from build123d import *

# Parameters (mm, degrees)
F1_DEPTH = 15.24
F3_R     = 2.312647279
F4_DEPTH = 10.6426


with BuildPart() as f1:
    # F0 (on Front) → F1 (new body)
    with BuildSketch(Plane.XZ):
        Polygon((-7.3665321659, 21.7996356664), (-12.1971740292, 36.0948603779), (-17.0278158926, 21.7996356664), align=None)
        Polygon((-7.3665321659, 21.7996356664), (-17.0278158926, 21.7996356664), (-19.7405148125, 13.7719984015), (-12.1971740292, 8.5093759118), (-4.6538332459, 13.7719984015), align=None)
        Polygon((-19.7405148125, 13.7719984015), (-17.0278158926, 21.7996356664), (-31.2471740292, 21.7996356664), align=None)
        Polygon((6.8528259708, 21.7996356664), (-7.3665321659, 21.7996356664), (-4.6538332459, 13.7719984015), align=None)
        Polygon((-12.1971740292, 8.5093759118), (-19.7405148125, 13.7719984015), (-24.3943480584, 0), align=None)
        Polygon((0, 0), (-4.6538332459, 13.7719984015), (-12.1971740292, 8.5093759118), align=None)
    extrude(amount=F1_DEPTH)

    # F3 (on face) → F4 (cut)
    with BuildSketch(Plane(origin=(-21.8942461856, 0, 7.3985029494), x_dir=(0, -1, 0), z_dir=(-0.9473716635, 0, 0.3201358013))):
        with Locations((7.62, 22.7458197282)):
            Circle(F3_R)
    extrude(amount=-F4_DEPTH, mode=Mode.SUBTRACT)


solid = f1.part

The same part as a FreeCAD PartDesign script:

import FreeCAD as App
import Part
import Sketcher
from FreeCAD import Vector
Q = App.Units.Quantity

doc = App.newDocument("Part")
body = doc.addObject("PartDesign::Body", "Body")

# Sketch on XZ plane
sketch1 = body.newObject("Sketcher::SketchObject", "Sketch")
sketch1.AttachmentSupport = (doc.getObject("XZ_Plane"), [""])
sketch1.MapMode = "FlatFace"
sketch1.addGeometry(Part.LineSegment(Vector(-7.366532, 21.799636, 0), Vector(-12.197174, 36.09486, 0)), False)
sketch1.addGeometry(Part.LineSegment(Vector(-12.197174, 36.09486, 0), Vector(-17.027816, 21.799636, 0)), False)
sketch1.addGeometry(Part.LineSegment(Vector(-17.027816, 21.799636, 0), Vector(-31.247174, 21.799636, 0)), False)
sketch1.addGeometry(Part.LineSegment(Vector(-31.247174, 21.799636, 0), Vector(-19.740515, 13.771998, 0)), False)
sketch1.addGeometry(Part.LineSegment(Vector(-19.740515, 13.771998, 0), Vector(-24.394348, 0, 0)), False)
sketch1.addGeometry(Part.LineSegment(Vector(-24.394348, 0, 0), Vector(-12.197174, 8.509376, 0)), False)
sketch1.addGeometry(Part.LineSegment(Vector(-12.197174, 8.509376, 0), Vector(0, 0, 0)), False)
sketch1.addGeometry(Part.LineSegment(Vector(0, 0, 0), Vector(-4.653833, 13.771998, 0)), False)
sketch1.addGeometry(Part.LineSegment(Vector(-4.653833, 13.771998, 0), Vector(6.852826, 21.799636, 0)), False)
sketch1.addGeometry(Part.LineSegment(Vector(6.852826, 21.799636, 0), Vector(-7.366532, 21.799636, 0)), False)
sketch1.addConstraint(Sketcher.Constraint("Coincident", 0, 2, 1, 1))
sketch1.addConstraint(Sketcher.Constraint("Coincident", 1, 2, 2, 1))
sketch1.addConstraint(Sketcher.Constraint("Coincident", 2, 2, 3, 1))
sketch1.addConstraint(Sketcher.Constraint("Coincident", 3, 2, 4, 1))
sketch1.addConstraint(Sketcher.Constraint("Coincident", 4, 2, 5, 1))
sketch1.addConstraint(Sketcher.Constraint("Coincident", 5, 2, 6, 1))
sketch1.addConstraint(Sketcher.Constraint("Coincident", 6, 2, 7, 1))
sketch1.addConstraint(Sketcher.Constraint("Coincident", 7, 2, 8, 1))
sketch1.addConstraint(Sketcher.Constraint("Coincident", 8, 2, 9, 1))
sketch1.addConstraint(Sketcher.Constraint("Coincident", 9, 2, 0, 1))
sketch1.addConstraint(Sketcher.Constraint("Horizontal", 2))
sketch1.addConstraint(Sketcher.Constraint("Horizontal", 9))
sketch1.addConstraint(Sketcher.Constraint("Coincident", 6, 2, -1, 1))
sketch1.addConstraint(Sketcher.Constraint("PointOnObject", 4, 2, -1))
sketch1.addConstraint(Sketcher.Constraint("Parallel", 1, 4))
sketch1.addConstraint(Sketcher.Constraint("Parallel", 3, 6))
sketch1.addConstraint(Sketcher.Constraint("Parallel", 0, 7))
sketch1.addConstraint(Sketcher.Constraint("Parallel", 5, 8))
sketch1.addConstraint(Sketcher.Constraint("Horizontal", 3, 2, 7, 2))
sketch1.addConstraint(Sketcher.Constraint("Horizontal", 2, 2, 8, 2))
sketch1.addConstraint(Sketcher.Constraint("Vertical", 0, 2, 5, 2))
sketch1.addConstraint(Sketcher.Constraint("Equal", 2, 9))
sketch1.addConstraint(Sketcher.Constraint("Equal", 0, 1))
sketch1.addConstraint(Sketcher.Constraint("DistanceX", 2, 2, 0, 2, Q("0.75 in")))
sketch1.addConstraint(Sketcher.Constraint("DistanceX", 2, 2, 2, 1, 14.219358))
sketch1.addConstraint(Sketcher.Constraint("DistanceY", -1, 1, 3, 2, 13.771998))
sketch1.addConstraint(Sketcher.Constraint("DistanceX", 3, 2, 1, 2, 2.712699))
sketch1.addConstraint(Sketcher.Constraint("Distance", 4, 14.53706))
sketch1.addConstraint(Sketcher.Constraint("Distance", 5, 14.872139))
pad1 = body.newObject("PartDesign::Pad", "Pad")
pad1.Profile = sketch1
pad1.Length = Q("0.6 in")

# Sketch on an angled plane
sketch2 = body.newObject("Sketcher::SketchObject", "Sketch001")
sketch2.Placement = App.Placement(Vector(-21.894246, 0, 7.398503), App.Rotation(Vector(0, -1, 0), Vector(0.320135801, 0, 0.947371663), Vector(-0.947371663, 0, 0.320135801), "ZXY"))
sketch2.addGeometry(Part.Circle(Vector(7.62, 22.74582, 0), Vector(0, 0, 1), 2.312647), False)
sketch2.addConstraint(Sketcher.Constraint("DistanceX", -1, 1, 0, 3, Q("0.3 in")))
sketch2.addConstraint(Sketcher.Constraint("Diameter", 0, 4.625295))
sketch2.addConstraint(Sketcher.Constraint("DistanceY", -1, 1, 0, 3, 22.74582))
pocket1 = body.newObject("PartDesign::Pocket", "Pocket")
pocket1.Profile = sketch2
pocket1.Length = Q("0.419 in")

doc.recompute()
